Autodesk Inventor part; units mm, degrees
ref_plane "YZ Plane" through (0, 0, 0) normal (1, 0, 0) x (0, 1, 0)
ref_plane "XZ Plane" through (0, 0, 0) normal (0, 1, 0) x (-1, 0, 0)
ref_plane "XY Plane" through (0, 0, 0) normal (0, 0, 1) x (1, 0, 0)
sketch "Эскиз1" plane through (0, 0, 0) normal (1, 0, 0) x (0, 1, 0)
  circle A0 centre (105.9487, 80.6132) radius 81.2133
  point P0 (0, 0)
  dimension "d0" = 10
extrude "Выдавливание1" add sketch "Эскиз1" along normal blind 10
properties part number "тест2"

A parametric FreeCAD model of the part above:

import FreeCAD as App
import Part
import Sketcher

V = App.Vector
Q = App.Units.Quantity

doc = App.newDocument("Part")
body = doc.addObject("PartDesign::Body", "Body")

# Sketch on YZ plane
sketch1 = doc.addObject("Sketcher::SketchObject", "Sketch")
body.addObject(sketch1)
sketch1.AttachmentSupport = (doc.YZ_Plane, [""])
sketch1.MapMode = "FlatFace"
sketch1.addGeometry(Part.Circle(V(105.9487, 80.6132, 0), V(0, 0, 1), 81.2133), False)
sketch1.addConstraint([
    Sketcher.Constraint("Diameter", 0, Q("162.4266 mm")),
    Sketcher.Constraint("DistanceX", -1, 1, 0, 3, Q("105.9487 mm")),
    Sketcher.Constraint("DistanceY", -1, 1, 0, 3, Q("80.6132 mm")),
])
pad1 = doc.addObject("PartDesign::Pad", "Pad")
body.addObject(pad1)
pad1.Profile = sketch1
pad1.Length = 10

doc.recompute()
